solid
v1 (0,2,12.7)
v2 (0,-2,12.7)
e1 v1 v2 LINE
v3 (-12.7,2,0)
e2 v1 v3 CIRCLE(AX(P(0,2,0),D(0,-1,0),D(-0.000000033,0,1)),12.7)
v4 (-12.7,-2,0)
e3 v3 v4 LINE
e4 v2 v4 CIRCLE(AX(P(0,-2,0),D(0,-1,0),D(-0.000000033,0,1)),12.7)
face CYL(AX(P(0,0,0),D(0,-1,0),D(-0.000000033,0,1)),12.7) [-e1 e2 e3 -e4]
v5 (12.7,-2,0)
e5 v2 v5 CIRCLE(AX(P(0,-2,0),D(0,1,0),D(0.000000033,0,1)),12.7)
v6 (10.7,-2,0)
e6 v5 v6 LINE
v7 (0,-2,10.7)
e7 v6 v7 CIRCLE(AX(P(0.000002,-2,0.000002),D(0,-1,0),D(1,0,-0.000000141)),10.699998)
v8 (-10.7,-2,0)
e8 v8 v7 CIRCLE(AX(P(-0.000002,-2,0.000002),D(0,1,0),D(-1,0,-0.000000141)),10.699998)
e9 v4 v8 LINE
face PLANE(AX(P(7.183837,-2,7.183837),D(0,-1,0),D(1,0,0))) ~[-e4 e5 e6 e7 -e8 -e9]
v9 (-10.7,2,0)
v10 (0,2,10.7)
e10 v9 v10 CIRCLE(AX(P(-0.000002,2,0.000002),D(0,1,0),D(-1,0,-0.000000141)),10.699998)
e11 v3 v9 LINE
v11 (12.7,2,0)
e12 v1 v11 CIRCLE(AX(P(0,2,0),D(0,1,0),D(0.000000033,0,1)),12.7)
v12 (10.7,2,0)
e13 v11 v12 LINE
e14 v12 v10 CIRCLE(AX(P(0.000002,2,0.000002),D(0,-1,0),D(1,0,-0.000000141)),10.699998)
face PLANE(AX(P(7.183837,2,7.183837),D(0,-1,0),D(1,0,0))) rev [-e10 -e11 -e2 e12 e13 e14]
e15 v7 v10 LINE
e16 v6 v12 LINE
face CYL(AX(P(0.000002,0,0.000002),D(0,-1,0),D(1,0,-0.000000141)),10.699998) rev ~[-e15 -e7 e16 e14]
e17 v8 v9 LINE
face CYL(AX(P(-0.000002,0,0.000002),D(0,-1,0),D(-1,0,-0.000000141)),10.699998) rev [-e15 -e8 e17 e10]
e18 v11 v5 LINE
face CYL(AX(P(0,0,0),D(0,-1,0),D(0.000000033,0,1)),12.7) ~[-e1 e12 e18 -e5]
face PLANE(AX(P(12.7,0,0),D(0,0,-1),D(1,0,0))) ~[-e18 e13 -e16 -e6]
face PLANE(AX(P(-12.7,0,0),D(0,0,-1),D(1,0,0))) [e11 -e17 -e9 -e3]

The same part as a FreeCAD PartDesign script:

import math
import FreeCAD as App
import Part
import Sketcher

V = App.Vector

doc = App.newDocument("Part")
params = doc.addObject("Spreadsheet::Sheet", "Params")
for row, (alias, value) in enumerate([
    ("sketch1_radius", "12.7 mm"),
    ("sketch1_radius2", "10.699998 mm"),
    ("pad1_length", "2 mm"),
    ("pad1_length2", "2 mm"),
], start=1):
    params.set(f"A{row}", alias)
    params.set(f"B{row}", "=" + value)
    params.setAlias(f"B{row}", alias)

body = doc.addObject("PartDesign::Body", "Body")

sketch1 = body.newObject("Sketcher::SketchObject", "Sketch")
sketch1.AttachmentSupport = (doc.getObject("XZ_Plane"), [""])
sketch1.MapMode = "FlatFace"
sketch1.addGeometry(Part.LineSegment(V(0, 10.7, 0), V(0, 12.7, 0)), False)
sketch1.addGeometry(Part.ArcOfCircle(Part.Circle(V(0, 0, 0), V(0, 0, 1), 12.7), math.radians(90), math.radians(180)), False)
sketch1.addGeometry(Part.LineSegment(V(-12.7, 0, 0), V(-10.7, 0, 0)), False)
sketch1.addGeometry(Part.ArcOfCircle(Part.Circle(V(0, 0, 0), V(0, 0, 1), 10.7), math.radians(90), math.radians(180)), False)
sketch1.addConstraint(Sketcher.Constraint("Coincident", 0, 2, 1, 1))
sketch1.addConstraint(Sketcher.Constraint("Coincident", 1, 2, 2, 1))
sketch1.addConstraint(Sketcher.Constraint("Coincident", 2, 2, 3, 2))
sketch1.addConstraint(Sketcher.Constraint("Coincident", 3, 1, 0, 1))
sketch1.addConstraint(Sketcher.Constraint("Vertical", 0))
sketch1.addConstraint(Sketcher.Constraint("Horizontal", 2))
sketch1.addConstraint(Sketcher.Constraint("Coincident", 1, 3, -1, 1))
sketch1.addConstraint(Sketcher.Constraint("Coincident", 3, 3, -1, 1))
sketch1.addConstraint(Sketcher.Constraint("PointOnObject", 0, 2, -2))
sketch1.addConstraint(Sketcher.Constraint("PointOnObject", 1, 2, -1))
sketch1.addConstraint(Sketcher.Constraint("Radius", 1, 12.7))
sketch1.addConstraint(Sketcher.Constraint("Radius", 3, 10.699998))
sketch1.setExpression("Constraints[10]", "Params.sketch1_radius")
sketch1.setExpression("Constraints[11]", "Params.sketch1_radius2")
pad1 = body.newObject("PartDesign::Pad", "Pad")
pad1.Profile = sketch1
pad1.Type = "TwoLengths"
pad1.setExpression("Length", "Params.pad1_length")
pad1.setExpression("Length2", "Params.pad1_length2")
body2 = doc.addObject("PartDesign::Body", "Body001")
doc.recompute()

body2.BaseFeature = body
doc.recompute()

mirroring = doc.addObject("Part::Mirroring", "Mirroring")
mirroring.Source = body
mirroring.Base = V(0, 0, 11.7)
mirroring.Normal = V(1, 0, 0)
body3 = doc.addObject("PartDesign::Body", "Body002")
body3.BaseFeature = mirroring
boolean = body2.newObject("PartDesign::Boolean", "Boolean")
boolean.Type = "Fuse"
boolean.addObjects([body3])
doc.recompute()
mirroring.Visibility = False

doc.recompute()
